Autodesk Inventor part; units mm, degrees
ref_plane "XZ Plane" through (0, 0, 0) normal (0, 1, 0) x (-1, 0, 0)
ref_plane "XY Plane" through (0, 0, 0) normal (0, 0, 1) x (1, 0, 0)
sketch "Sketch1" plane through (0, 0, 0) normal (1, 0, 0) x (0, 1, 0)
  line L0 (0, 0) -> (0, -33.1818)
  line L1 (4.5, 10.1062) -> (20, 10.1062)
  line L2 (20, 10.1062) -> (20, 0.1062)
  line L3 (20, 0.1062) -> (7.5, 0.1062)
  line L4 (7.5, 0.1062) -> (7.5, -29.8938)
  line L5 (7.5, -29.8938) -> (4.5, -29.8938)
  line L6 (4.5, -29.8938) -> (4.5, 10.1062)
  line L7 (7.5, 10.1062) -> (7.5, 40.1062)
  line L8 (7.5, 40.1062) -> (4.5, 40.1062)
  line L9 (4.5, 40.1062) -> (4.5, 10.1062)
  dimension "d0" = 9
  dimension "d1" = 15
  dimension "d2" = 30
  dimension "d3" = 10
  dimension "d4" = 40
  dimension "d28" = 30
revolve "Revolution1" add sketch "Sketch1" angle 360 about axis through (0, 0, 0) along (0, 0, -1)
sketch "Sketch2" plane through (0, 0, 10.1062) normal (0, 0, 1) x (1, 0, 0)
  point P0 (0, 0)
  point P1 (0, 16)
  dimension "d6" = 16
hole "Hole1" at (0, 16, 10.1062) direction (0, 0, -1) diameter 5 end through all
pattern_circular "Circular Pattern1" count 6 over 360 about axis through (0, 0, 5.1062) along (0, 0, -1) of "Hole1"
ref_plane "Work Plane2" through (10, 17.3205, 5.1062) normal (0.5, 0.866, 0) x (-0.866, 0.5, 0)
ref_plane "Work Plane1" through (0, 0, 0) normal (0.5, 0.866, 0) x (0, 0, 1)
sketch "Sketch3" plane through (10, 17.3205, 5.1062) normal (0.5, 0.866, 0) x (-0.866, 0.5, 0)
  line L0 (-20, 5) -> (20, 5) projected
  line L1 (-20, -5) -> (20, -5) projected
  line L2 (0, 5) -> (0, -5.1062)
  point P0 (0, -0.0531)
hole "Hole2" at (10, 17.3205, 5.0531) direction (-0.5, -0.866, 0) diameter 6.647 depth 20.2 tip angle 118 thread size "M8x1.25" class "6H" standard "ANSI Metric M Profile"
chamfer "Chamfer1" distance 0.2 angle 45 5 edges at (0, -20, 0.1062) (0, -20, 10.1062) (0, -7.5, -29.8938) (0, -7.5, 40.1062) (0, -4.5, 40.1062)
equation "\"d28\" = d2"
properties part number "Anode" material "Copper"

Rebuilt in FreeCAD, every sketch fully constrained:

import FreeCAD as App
import Part
import Sketcher

V = App.Vector
Q = App.Units.Quantity


def edges_at(feature, points):
    """Names of the edges that pass closest to the given points."""
    edges = feature.Shape.Edges
    near = lambda p: min(range(len(edges)), key=lambda i: edges[i].distToShape(Part.Vertex(*p))[0])
    return sorted({f"Edge{near(p) + 1}" for p in points})

doc = App.newDocument("Part")
body = doc.addObject("PartDesign::Body", "Body")

sketch1 = doc.addObject("Sketcher::SketchObject", "Sketch")
body.addObject(sketch1)
sketch1.AttachmentSupport = (doc.YZ_Plane, [""])
sketch1.MapMode = "FlatFace"
sketch1.addGeometry(Part.LineSegment(V(4.5, 40.1, 0), V(4.5, -29.9, 0)), False)
sketch1.addGeometry(Part.LineSegment(V(4.5, -29.9, 0), V(7.5, -29.9, 0)), False)
sketch1.addGeometry(Part.LineSegment(V(7.5, -29.9, 0), V(7.5, 0.1, 0)), False)
sketch1.addGeometry(Part.LineSegment(V(7.5, 0.1, 0), V(20, 0.1, 0)), False)
sketch1.addGeometry(Part.LineSegment(V(20, 0.1, 0), V(20, 10.1, 0)), False)
sketch1.addGeometry(Part.LineSegment(V(20, 10.1, 0), V(7.5, 10.1, 0)), False)
sketch1.addGeometry(Part.LineSegment(V(7.5, 10.1, 0), V(7.5, 40.1, 0)), False)
sketch1.addGeometry(Part.LineSegment(V(7.5, 40.1, 0), V(4.5, 40.1, 0)), False)
sketch1.addConstraint(Sketcher.Constraint("Coincident", 0, 2, 1, 1))
sketch1.addConstraint(Sketcher.Constraint("Coincident", 1, 2, 2, 1))
sketch1.addConstraint(Sketcher.Constraint("Coincident", 2, 2, 3, 1))
sketch1.addConstraint(Sketcher.Constraint("Coincident", 3, 2, 4, 1))
sketch1.addConstraint(Sketcher.Constraint("Coincident", 4, 2, 5, 1))
sketch1.addConstraint(Sketcher.Constraint("Coincident", 5, 2, 6, 1))
sketch1.addConstraint(Sketcher.Constraint("Coincident", 6, 2, 7, 1))
sketch1.addConstraint(Sketcher.Constraint("Coincident", 7, 2, 0, 1))
sketch1.addConstraint(Sketcher.Constraint("Vertical", 0))
sketch1.addConstraint(Sketcher.Constraint("Horizontal", 1))
sketch1.addConstraint(Sketcher.Constraint("Vertical", 2))
sketch1.addConstraint(Sketcher.Constraint("Horizontal", 3))
sketch1.addConstraint(Sketcher.Constraint("Vertical", 4))
sketch1.addConstraint(Sketcher.Constraint("Horizontal", 5))
sketch1.addConstraint(Sketcher.Constraint("Vertical", 6))
sketch1.addConstraint(Sketcher.Constraint("Horizontal", 7))
sketch1.addConstraint(Sketcher.Constraint("Vertical", 2, 2, 5, 2))
sketch1.addConstraint(Sketcher.Constraint("Equal", 2, 6))
sketch1.addConstraint(Sketcher.Constraint("DistanceY", 2, 1, 2, 2, Q("30 mm")))
sketch1.addConstraint(Sketcher.Constraint("DistanceY", 4, 1, 4, 2, Q("10 mm")))
sketch1.addConstraint(Sketcher.Constraint("DistanceX", 1, 1, 1, 2, Q("3 mm")))
sketch1.addConstraint(Sketcher.Constraint("DistanceX", 3, 1, 3, 2, Q("12.5 mm")))
sketch1.addConstraint(Sketcher.Constraint("DistanceX", -1, 1, 3, 2, Q("20 mm")))
sketch1.addConstraint(Sketcher.Constraint("DistanceY", 0, 2, -1, 1, Q("29.8938 mm")))
revolution = doc.addObject("PartDesign::Revolution", "Revolution")
body.addObject(revolution)
revolution.Profile = sketch1
revolution.ReferenceAxis = (sketch1, ["V_Axis"])
revolution.Angle = 360

sketch2 = doc.addObject("Sketcher::SketchObject", "Sketch001")
body.addObject(sketch2)
sketch2.AttachmentSupport = (doc.XY_Plane, [""])
sketch2.MapMode = "FlatFace"
sketch2.AttachmentOffset = App.Placement(V(0, 0, 10.1062), App.Rotation())
sketch2.addGeometry(Part.Circle(V(0, 16, 0), V(0, 0, 1), 2.5), False)
sketch2.addConstraint(Sketcher.Constraint("PointOnObject", 0, 3, -2))
sketch2.addConstraint(Sketcher.Constraint("Diameter", 0, Q("5 mm")))
sketch2.addConstraint(Sketcher.Constraint("DistanceY", -1, 1, 0, 3, Q("16 mm")))
doc.recompute()
hole = doc.addObject("PartDesign::Hole", "Hole")
body.addObject(hole)
hole.Profile = sketch2
hole.ThreadType = "None"
hole.Diameter = 5
hole.DepthType = "ThroughAll"
doc.recompute()

polarpattern = doc.addObject("PartDesign::PolarPattern", "PolarPattern")
body.addObject(polarpattern)
polarpattern.Originals = [hole]
polarpattern.Axis = (doc.Z_Axis, [""])
polarpattern.Angle = 360
polarpattern.Occurrences = 6
body.Tip = polarpattern

sketch3 = doc.addObject("Sketcher::SketchObject", "Sketch002")
body.addObject(sketch3)
sketch3.Placement = App.Placement(V(9.999997, 17.320502, 0), App.Rotation(V(-0.866025404, 0.5, 0), V(0, 0, 1), V(0.5, 0.866025404, 0), "ZXY"))
sketch3.addGeometry(Part.Circle(V(0, 5.1, 0), V(0, 0, 1), 3.3), False)
sketch3.addConstraint(Sketcher.Constraint("PointOnObject", 0, 3, -2))
sketch3.addConstraint(Sketcher.Constraint("Diameter", 0, Q("6.647 mm")))
sketch3.addConstraint(Sketcher.Constraint("DistanceY", -1, 1, 0, 3, Q("5.053 mm")))
doc.recompute()
hole2 = doc.addObject("PartDesign::Hole", "Hole001")
body.addObject(hole2)
hole2.Profile = sketch3
hole2.ThreadType = "None"
hole2.Diameter = 6.647
hole2.DepthType = "Dimension"
hole2.Depth = 20.2
hole2.DrillPoint = "Angled"
hole2.DrillPointAngle = 118
doc.recompute()

chamfer = doc.addObject("PartDesign::Chamfer", "Chamfer")
body.addObject(chamfer)
chamfer.Base = (hole2, edges_at(hole2, [
    (0, -20, 0.106),
    (0, -20, 10.106),
    (0, -7.5, -29.894),
    (0, -7.5, 40.106),
    (0, -4.5, 40.106),
]))
chamfer.Size = 0.2

doc.recompute()
